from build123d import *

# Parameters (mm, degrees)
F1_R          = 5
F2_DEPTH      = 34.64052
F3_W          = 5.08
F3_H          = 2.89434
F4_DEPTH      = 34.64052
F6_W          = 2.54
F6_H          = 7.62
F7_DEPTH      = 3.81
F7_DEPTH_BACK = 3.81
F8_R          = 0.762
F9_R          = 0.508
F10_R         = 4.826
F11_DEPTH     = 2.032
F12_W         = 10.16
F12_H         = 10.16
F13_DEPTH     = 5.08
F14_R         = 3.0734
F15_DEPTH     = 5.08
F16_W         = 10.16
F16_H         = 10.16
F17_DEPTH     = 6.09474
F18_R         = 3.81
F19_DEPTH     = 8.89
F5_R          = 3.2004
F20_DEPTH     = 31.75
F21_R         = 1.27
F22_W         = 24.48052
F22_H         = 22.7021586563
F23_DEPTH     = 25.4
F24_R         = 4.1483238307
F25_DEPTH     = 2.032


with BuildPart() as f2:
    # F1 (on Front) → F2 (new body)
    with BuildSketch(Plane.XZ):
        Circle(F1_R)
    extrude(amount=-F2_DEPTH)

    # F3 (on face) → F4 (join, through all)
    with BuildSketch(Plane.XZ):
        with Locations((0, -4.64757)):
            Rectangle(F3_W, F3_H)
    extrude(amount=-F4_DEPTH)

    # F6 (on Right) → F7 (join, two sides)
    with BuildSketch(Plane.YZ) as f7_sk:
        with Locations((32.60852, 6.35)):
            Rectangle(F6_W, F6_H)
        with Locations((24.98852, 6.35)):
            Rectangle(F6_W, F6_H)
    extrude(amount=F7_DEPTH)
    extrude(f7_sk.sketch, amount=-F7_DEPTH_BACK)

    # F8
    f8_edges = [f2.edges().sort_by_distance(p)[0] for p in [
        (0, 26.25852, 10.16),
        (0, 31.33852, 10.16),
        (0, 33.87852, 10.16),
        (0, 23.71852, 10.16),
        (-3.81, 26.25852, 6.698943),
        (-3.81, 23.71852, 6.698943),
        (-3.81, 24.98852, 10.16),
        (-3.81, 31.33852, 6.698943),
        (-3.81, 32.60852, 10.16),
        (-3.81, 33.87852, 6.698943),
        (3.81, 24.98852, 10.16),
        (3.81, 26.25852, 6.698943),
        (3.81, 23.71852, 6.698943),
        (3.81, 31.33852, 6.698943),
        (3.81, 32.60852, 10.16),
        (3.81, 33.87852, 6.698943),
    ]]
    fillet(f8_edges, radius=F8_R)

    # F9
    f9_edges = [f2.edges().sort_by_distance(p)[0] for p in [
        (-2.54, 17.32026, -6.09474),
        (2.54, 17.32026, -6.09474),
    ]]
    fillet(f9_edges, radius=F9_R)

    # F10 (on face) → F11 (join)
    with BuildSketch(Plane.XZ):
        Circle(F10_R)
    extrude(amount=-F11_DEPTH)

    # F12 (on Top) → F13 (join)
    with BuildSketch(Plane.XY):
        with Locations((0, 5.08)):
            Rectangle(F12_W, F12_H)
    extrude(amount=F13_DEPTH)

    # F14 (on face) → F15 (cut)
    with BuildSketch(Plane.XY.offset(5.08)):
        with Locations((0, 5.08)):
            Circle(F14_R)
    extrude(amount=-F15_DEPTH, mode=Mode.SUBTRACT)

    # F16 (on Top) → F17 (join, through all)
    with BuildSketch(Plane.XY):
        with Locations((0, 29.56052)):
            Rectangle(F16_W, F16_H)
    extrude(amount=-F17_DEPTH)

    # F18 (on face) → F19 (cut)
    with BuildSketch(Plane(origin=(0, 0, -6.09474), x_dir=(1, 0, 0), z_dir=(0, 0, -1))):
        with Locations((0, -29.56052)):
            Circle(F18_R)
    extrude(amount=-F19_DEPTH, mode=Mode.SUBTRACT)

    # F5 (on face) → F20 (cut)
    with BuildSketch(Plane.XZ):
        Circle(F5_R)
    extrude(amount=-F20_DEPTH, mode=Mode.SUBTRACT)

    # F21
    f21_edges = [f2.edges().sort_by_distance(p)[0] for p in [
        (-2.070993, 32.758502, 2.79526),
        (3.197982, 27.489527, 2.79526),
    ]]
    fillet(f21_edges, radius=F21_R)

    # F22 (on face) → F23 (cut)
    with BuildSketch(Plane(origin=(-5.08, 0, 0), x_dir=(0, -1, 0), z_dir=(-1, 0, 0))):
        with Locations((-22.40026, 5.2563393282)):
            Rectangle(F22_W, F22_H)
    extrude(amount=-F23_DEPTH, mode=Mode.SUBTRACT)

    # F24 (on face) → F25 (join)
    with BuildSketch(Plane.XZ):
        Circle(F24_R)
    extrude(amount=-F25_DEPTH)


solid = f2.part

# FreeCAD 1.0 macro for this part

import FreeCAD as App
import Part
import Sketcher
Q = App.Units.Quantity


def edges_at(feature, points):
    """Names of the edges that pass closest to the given points."""
    edges = feature.Shape.Edges
    near = lambda p: min(range(len(edges)), key=lambda i: edges[i].distToShape(Part.Vertex(*p))[0])
    return sorted({f"Edge{near(p) + 1}" for p in points})


def add_polygon(sketch, points):
    """Adds a closed chain of lines whose ends are joined by coincident constraints."""
    first, n = sketch.GeometryCount, len(points)
    for a, b in zip(points, points[1:] + points[:1]):
        sketch.addGeometry(Part.LineSegment(App.Vector(*a, 0), App.Vector(*b, 0)), False)
    for i in range(n):
        sketch.addConstraint(Sketcher.Constraint("Coincident", first + i, 2, first + (i + 1) % n, 1))

doc = App.newDocument("Part")
body = doc.addObject("PartDesign::Body", "Body")

# Sketch on XZ plane
sketch1 = body.newObject("Sketcher::SketchObject", "Sketch")
sketch1.AttachmentSupport = (doc.getObject("XZ_Plane"), [""])
sketch1.MapMode = "FlatFace"
sketch1.addGeometry(Part.Circle(App.Vector(0, 0, 0), App.Vector(0, 0, 1), 5), False)
sketch1.addConstraint(Sketcher.Constraint("Coincident", 0, 3, -1, 1))
sketch1.addConstraint(Sketcher.Constraint("Diameter", 0, 10.0))
pad1 = body.newObject("PartDesign::Pad", "Pad")
pad1.Profile = sketch1
pad1.Length = Q("1.3638 in")
pad1.Reversed = True

# Sketch on XZ plane
sketch2 = body.newObject("Sketcher::SketchObject", "Sketch001")
sketch2.AttachmentSupport = (doc.getObject("XZ_Plane"), [""])
sketch2.MapMode = "FlatFace"
add_polygon(sketch2, [(-2.5, -3.2), (-2.5, -6.1), (2.5, -6.1), (2.5, -3.2)])  # lines 0-3
sketch2.addConstraint(Sketcher.Constraint("Vertical", 0))
sketch2.addConstraint(Sketcher.Constraint("Horizontal", 1))
sketch2.addConstraint(Sketcher.Constraint("Vertical", 2))
sketch2.addConstraint(Sketcher.Constraint("Horizontal", 3))
sketch2.addConstraint(Sketcher.Constraint("DistanceX", 1, 1, 1, 2, Q("0.2 in")))
sketch2.addConstraint(Sketcher.Constraint("DistanceX", 0, 2, -1, 1, Q("0.1 in")))
sketch2.addConstraint(Sketcher.Constraint("DistanceY", 2, 2, -1, 1, Q("0.126 in")))
sketch2.addConstraint(Sketcher.Constraint("DistanceY", 0, 2, 0, 1, 2.89434))
pad2 = body.newObject("PartDesign::Pad", "Pad001")
pad2.Profile = sketch2
pad2.Type = "UpToLast"
pad2.Reversed = True

# Sketch on YZ plane
sketch3 = body.newObject("Sketcher::SketchObject", "Sketch002")
sketch3.AttachmentSupport = (doc.getObject("YZ_Plane"), [""])
sketch3.MapMode = "FlatFace"
add_polygon(sketch3, [(31.3, 10.2), (31.3, 2.5), (33.9, 2.5), (33.9, 10.2)])  # lines 0-3
add_polygon(sketch3, [(23.7, 10.2), (23.7, 2.5), (26.3, 2.5), (26.3, 10.2)])  # lines 4-7
sketch3.addConstraint(Sketcher.Constraint("Vertical", 0))
sketch3.addConstraint(Sketcher.Constraint("Horizontal", 1))
sketch3.addConstraint(Sketcher.Constraint("Vertical", 2))
sketch3.addConstraint(Sketcher.Constraint("Horizontal", 3))
sketch3.addConstraint(Sketcher.Constraint("Vertical", 4))
sketch3.addConstraint(Sketcher.Constraint("Horizontal", 5))
sketch3.addConstraint(Sketcher.Constraint("Vertical", 6))
sketch3.addConstraint(Sketcher.Constraint("Horizontal", 7))
sketch3.addConstraint(Sketcher.Constraint("Horizontal", 1, 2, 4, 2))
sketch3.addConstraint(Sketcher.Constraint("Horizontal", 3, 2, 6, 2))
sketch3.addConstraint(Sketcher.Constraint("Equal", 3, 5))
sketch3.addConstraint(Sketcher.Constraint("DistanceX", 1, 1, 1, 2, Q("0.1 in")))
sketch3.addConstraint(Sketcher.Constraint("DistanceY", 0, 2, 0, 1, Q("0.3 in")))
sketch3.addConstraint(Sketcher.Constraint("DistanceY", -1, 1, 0, 2, Q("0.1 in")))
sketch3.addConstraint(Sketcher.Constraint("DistanceX", 4, 2, 0, 2, Q("0.3 in")))
sketch3.addConstraint(Sketcher.Constraint("DistanceX", -1, 1, 0, 2, Q("1.2338 in")))
pad3 = body.newObject("PartDesign::Pad", "Pad002")
pad3.Profile = sketch3
pad3.Type = "TwoLengths"
pad3.Length = Q("0.15 in")
pad3.Length2 = Q("0.15 in")
doc.recompute()

fillet = body.newObject("PartDesign::Fillet", "Fillet")
fillet.Base = (pad3, edges_at(pad3, [
    (0, 26.259, 10.16),
    (0, 31.339, 10.16),
    (0, 33.879, 10.16),
    (0, 23.719, 10.16),
    (-3.81, 26.259, 6.699),
    (-3.81, 23.719, 6.699),
    (-3.81, 24.989, 10.16),
    (-3.81, 31.339, 6.699),
    (-3.81, 32.609, 10.16),
    (-3.81, 33.879, 6.699),
    (3.81, 24.989, 10.16),
    (3.81, 26.259, 6.699),
    (3.81, 23.719, 6.699),
    (3.81, 31.339, 6.699),
    (3.81, 32.609, 10.16),
    (3.81, 33.879, 6.699),
]))
fillet.Radius = Q("0.03 in")
doc.recompute()

fillet2 = body.newObject("PartDesign::Fillet", "Fillet001")
fillet2.Base = (fillet, edges_at(fillet, [(-2.54, 17.32, -6.095), (2.54, 17.32, -6.095)]))
fillet2.Radius = Q("0.02 in")

# Sketch on XZ plane
sketch4 = body.newObject("Sketcher::SketchObject", "Sketch003")
sketch4.AttachmentSupport = (doc.getObject("XZ_Plane"), [""])
sketch4.MapMode = "FlatFace"
sketch4.addGeometry(Part.Circle(App.Vector(0, 0, 0), App.Vector(0, 0, 1), 4.8), False)
sketch4.addConstraint(Sketcher.Constraint("Coincident", 0, 3, -1, 1))
sketch4.addConstraint(Sketcher.Constraint("Diameter", 0, Q("0.38 in")))
pad4 = body.newObject("PartDesign::Pad", "Pad003")
pad4.Profile = sketch4
pad4.Length = Q("0.08 in")
pad4.Reversed = True

# Sketch on XY plane
sketch5 = body.newObject("Sketcher::SketchObject", "Sketch004")
sketch5.AttachmentSupport = (doc.getObject("XY_Plane"), [""])
sketch5.MapMode = "FlatFace"
add_polygon(sketch5, [(-5, 10), (-5, 0), (5, 0), (5, 10)])  # lines 0-3
sketch5.addConstraint(Sketcher.Constraint("Vertical", 0))
sketch5.addConstraint(Sketcher.Constraint("Horizontal", 1))
sketch5.addConstraint(Sketcher.Constraint("Vertical", 2))
sketch5.addConstraint(Sketcher.Constraint("Horizontal", 3))
sketch5.addConstraint(Sketcher.Constraint("Symmetric", 0, 2, 1, 2, -1, 1))
sketch5.addConstraint(Sketcher.Constraint("Equal", 3, 0))
sketch5.addConstraint(Sketcher.Constraint("DistanceX", 1, 1, 1, 2, Q("0.4 in")))
pad5 = body.newObject("PartDesign::Pad", "Pad004")
pad5.Profile = sketch5
pad5.Length = Q("0.2 in")

# Sketch on XY plane
sketch6 = body.newObject("Sketcher::SketchObject", "Sketch005")
sketch6.AttachmentSupport = (doc.getObject("XY_Plane"), [""])
sketch6.MapMode = "FlatFace"
sketch6.AttachmentOffset = App.Placement(App.Vector(0, 0, 0.2 * 25.4), App.Rotation())
sketch6.addGeometry(Part.Circle(App.Vector(0, 5.1, 0), App.Vector(0, 0, 1), 3.1), False)
sketch6.addConstraint(Sketcher.Constraint("PointOnObject", 0, 3, -2))
sketch6.addConstraint(Sketcher.Constraint("Diameter", 0, Q("0.242 in")))
sketch6.addConstraint(Sketcher.Constraint("DistanceY", -1, 1, 0, 3, Q("0.2 in")))
pocket1 = body.newObject("PartDesign::Pocket", "Pocket")
pocket1.Profile = sketch6
pocket1.Length = Q("0.2 in")

# Sketch on XY plane
sketch7 = body.newObject("Sketcher::SketchObject", "Sketch006")
sketch7.AttachmentSupport = (doc.getObject("XY_Plane"), [""])
sketch7.MapMode = "FlatFace"
add_polygon(sketch7, [(-5, 35), (-5, 24), (5, 24), (5, 35)])  # lines 0-3
sketch7.addConstraint(Sketcher.Constraint("Vertical", 0))
sketch7.addConstraint(Sketcher.Constraint("Horizontal", 1))
sketch7.addConstraint(Sketcher.Constraint("Vertical", 2))
sketch7.addConstraint(Sketcher.Constraint("Horizontal", 3))
sketch7.addConstraint(Sketcher.Constraint("Equal", 3, 0))
sketch7.addConstraint(Sketcher.Constraint("DistanceX", 1, 1, 1, 2, Q("0.4 in")))
sketch7.addConstraint(Sketcher.Constraint("DistanceX", 0, 2, -1, 1, Q("0.2 in")))
sketch7.addConstraint(Sketcher.Constraint("DistanceY", -1, 1, 0, 2, Q("0.9638 in")))
pad6 = body.newObject("PartDesign::Pad", "Pad005")
pad6.Profile = sketch7
pad6.Type = "UpToLast"
pad6.Reversed = True

# Sketch on XY plane
sketch8 = body.newObject("Sketcher::SketchObject", "Sketch007")
sketch8.AttachmentSupport = (doc.getObject("XY_Plane"), [""])
sketch8.MapMode = "FlatFace"
sketch8.AttachmentOffset = App.Placement(App.Vector(0, 0, -6.09474), App.Rotation())
sketch8.addGeometry(Part.Circle(App.Vector(0, 29.6, 0), App.Vector(0, 0, 1), 3.8), False)
sketch8.addConstraint(Sketcher.Constraint("PointOnObject", 0, 3, -2))
sketch8.addConstraint(Sketcher.Constraint("Diameter", 0, Q("0.3 in")))
sketch8.addConstraint(Sketcher.Constraint("DistanceY", -1, 1, 0, 3, Q("1.1638 in")))
pocket2 = body.newObject("PartDesign::Pocket", "Pocket001")
pocket2.Profile = sketch8
pocket2.Length = Q("0.35 in")
pocket2.Reversed = True

# Sketch on XZ plane
sketch9 = body.newObject("Sketcher::SketchObject", "Sketch008")
sketch9.AttachmentSupport = (doc.getObject("XZ_Plane"), [""])
sketch9.MapMode = "FlatFace"
sketch9.addGeometry(Part.Circle(App.Vector(0, 0, 0), App.Vector(0, 0, 1), 3.2), False)
sketch9.addConstraint(Sketcher.Constraint("Coincident", 0, 3, -1, 1))
sketch9.addConstraint(Sketcher.Constraint("Diameter", 0, Q("0.252 in")))
pocket3 = body.newObject("PartDesign::Pocket", "Pocket002")
pocket3.Profile = sketch9
pocket3.Length = Q("1.25 in")
doc.recompute()

fillet3 = body.newObject("PartDesign::Fillet", "Fillet002")
fillet3.Base = (pocket3, edges_at(pocket3, [(-2.071, 32.759, 2.795), (3.198, 27.49, 2.795)]))
fillet3.Radius = Q("0.05 in")

# Sketch on YZ plane
sketch10 = body.newObject("Sketcher::SketchObject", "Sketch009")
sketch10.AttachmentSupport = (doc.getObject("YZ_Plane"), [""])
sketch10.MapMode = "FlatFace"
sketch10.AttachmentOffset = App.Placement(App.Vector(0, 0, -0.2 * 25.4), App.Rotation())
add_polygon(sketch10, [(35, 17), (35, -6), (10, -6), (10, 17)])  # lines 0-3
sketch10.addConstraint(Sketcher.Constraint("Vertical", 0))
sketch10.addConstraint(Sketcher.Constraint("Horizontal", 1))
sketch10.addConstraint(Sketcher.Constraint("Vertical", 2))
sketch10.addConstraint(Sketcher.Constraint("Horizontal", 3))
sketch10.addConstraint(Sketcher.Constraint("DistanceX", -1, 1, 1, 2, Q("0.4 in")))
sketch10.addConstraint(Sketcher.Constraint("DistanceX", 1, 2, 1, 1, Q("0.9638 in")))
sketch10.addConstraint(Sketcher.Constraint("DistanceY", 0, 2, 0, 1, 22.702159))
sketch10.addConstraint(Sketcher.Constraint("DistanceY", 0, 2, -1, 1, 6.09474))
pocket4 = body.newObject("PartDesign::Pocket", "Pocket003")
pocket4.Profile = sketch10
pocket4.Length = Q("1 in")
pocket4.Reversed = True

# Sketch on XZ plane
sketch11 = body.newObject("Sketcher::SketchObject", "Sketch010")
sketch11.AttachmentSupport = (doc.getObject("XZ_Plane"), [""])
sketch11.MapMode = "FlatFace"
sketch11.addGeometry(Part.Circle(App.Vector(0, 0, 0), App.Vector(0, 0, 1), 4.1), False)
sketch11.addConstraint(Sketcher.Constraint("Coincident", 0, 3, -1, 1))
sketch11.addConstraint(Sketcher.Constraint("Diameter", 0, 8.296648))
pad7 = body.newObject("PartDesign::Pad", "Pad006")
pad7.Profile = sketch11
pad7.Length = Q("0.08 in")
pad7.Reversed = True

doc.recompute()
